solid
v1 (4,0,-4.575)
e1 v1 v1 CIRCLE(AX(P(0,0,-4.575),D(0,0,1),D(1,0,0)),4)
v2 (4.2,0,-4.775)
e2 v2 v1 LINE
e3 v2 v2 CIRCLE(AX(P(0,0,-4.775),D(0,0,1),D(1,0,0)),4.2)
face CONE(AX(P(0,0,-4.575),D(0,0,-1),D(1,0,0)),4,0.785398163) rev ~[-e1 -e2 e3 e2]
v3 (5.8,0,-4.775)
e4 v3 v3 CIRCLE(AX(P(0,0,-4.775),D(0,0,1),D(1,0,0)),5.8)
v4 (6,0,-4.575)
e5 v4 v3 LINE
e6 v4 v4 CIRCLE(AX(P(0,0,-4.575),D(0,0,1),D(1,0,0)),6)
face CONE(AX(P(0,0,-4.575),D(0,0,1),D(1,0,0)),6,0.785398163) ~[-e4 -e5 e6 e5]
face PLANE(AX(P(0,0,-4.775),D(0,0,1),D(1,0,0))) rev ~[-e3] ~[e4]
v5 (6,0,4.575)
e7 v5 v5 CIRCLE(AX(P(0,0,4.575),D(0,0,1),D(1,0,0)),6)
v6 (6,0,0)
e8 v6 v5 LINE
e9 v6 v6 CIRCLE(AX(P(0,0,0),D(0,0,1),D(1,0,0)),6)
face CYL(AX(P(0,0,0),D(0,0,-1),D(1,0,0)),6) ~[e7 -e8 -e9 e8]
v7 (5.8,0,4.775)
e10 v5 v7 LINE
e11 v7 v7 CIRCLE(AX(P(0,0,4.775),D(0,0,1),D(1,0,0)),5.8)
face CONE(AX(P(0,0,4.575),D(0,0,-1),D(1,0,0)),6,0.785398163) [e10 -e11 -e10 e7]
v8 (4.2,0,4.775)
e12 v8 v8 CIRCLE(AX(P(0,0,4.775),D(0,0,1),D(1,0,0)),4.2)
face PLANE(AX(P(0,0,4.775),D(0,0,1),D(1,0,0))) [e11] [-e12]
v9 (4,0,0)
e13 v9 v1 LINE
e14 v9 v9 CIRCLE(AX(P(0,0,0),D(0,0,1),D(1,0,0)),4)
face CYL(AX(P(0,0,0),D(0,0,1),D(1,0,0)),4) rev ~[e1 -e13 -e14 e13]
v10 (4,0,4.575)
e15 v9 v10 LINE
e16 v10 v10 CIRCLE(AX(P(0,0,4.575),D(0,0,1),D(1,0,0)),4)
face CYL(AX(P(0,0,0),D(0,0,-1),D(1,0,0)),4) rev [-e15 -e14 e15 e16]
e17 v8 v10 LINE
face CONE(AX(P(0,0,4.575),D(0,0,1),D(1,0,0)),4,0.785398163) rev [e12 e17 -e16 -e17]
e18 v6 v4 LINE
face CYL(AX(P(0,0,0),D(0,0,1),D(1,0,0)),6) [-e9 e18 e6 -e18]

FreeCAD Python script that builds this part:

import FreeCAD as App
import Part
import Sketcher


def edges_at(feature, points):
    """Names of the edges that pass closest to the given points."""
    edges = feature.Shape.Edges
    near = lambda p: min(range(len(edges)), key=lambda i: edges[i].distToShape(Part.Vertex(*p))[0])
    return sorted({f"Edge{near(p) + 1}" for p in points})

doc = App.newDocument("Part")
params = doc.addObject("Spreadsheet::Sheet", "Params")
for row, (alias, value) in enumerate([
    ("sketch1_diameter", "12 mm"),
    ("sketch1_diameter2", "8 mm"),
    ("pad1_length", "9.55 mm"),
    ("chamfer_size", "0.2 mm"),
], start=1):
    params.set(f"A{row}", alias)
    params.set(f"B{row}", "=" + value)
    params.setAlias(f"B{row}", alias)

body = doc.addObject("PartDesign::Body", "Body")

sketch1 = body.newObject("Sketcher::SketchObject", "Sketch")
sketch1.AttachmentSupport = (doc.getObject("XY_Plane"), [""])
sketch1.MapMode = "FlatFace"
sketch1.addGeometry([
    Part.Circle(App.Vector(0, 0, 0), App.Vector(0, 0, 1), 6),
    Part.Circle(App.Vector(0, 0, 0), App.Vector(0, 0, 1), 4),
], False)
sketch1.addConstraint([
    Sketcher.Constraint("Coincident", 0, 3, -1, 1),
    Sketcher.Constraint("Coincident", 1, 3, -1, 1),
    Sketcher.Constraint("Diameter", 0, 12.0),
    Sketcher.Constraint("Diameter", 1, 8.0),
])
sketch1.setExpression("Constraints[2]", "Params.sketch1_diameter")
sketch1.setExpression("Constraints[3]", "Params.sketch1_diameter2")
pad1 = body.newObject("PartDesign::Pad", "Pad")
pad1.Profile = sketch1
pad1.setExpression("Length", "Params.pad1_length")
pad1.Midplane = True
doc.recompute()

chamfer = body.newObject("PartDesign::Chamfer", "Chamfer")
chamfer.Base = (pad1, edges_at(pad1, [
    (-6, 0, 4.775),
    (-4, 0, 4.775),
    (-6, 0, -4.775),
    (-4, 0, -4.775),
]))
chamfer.setExpression("Size", "Params.chamfer_size")

doc.recompute()
